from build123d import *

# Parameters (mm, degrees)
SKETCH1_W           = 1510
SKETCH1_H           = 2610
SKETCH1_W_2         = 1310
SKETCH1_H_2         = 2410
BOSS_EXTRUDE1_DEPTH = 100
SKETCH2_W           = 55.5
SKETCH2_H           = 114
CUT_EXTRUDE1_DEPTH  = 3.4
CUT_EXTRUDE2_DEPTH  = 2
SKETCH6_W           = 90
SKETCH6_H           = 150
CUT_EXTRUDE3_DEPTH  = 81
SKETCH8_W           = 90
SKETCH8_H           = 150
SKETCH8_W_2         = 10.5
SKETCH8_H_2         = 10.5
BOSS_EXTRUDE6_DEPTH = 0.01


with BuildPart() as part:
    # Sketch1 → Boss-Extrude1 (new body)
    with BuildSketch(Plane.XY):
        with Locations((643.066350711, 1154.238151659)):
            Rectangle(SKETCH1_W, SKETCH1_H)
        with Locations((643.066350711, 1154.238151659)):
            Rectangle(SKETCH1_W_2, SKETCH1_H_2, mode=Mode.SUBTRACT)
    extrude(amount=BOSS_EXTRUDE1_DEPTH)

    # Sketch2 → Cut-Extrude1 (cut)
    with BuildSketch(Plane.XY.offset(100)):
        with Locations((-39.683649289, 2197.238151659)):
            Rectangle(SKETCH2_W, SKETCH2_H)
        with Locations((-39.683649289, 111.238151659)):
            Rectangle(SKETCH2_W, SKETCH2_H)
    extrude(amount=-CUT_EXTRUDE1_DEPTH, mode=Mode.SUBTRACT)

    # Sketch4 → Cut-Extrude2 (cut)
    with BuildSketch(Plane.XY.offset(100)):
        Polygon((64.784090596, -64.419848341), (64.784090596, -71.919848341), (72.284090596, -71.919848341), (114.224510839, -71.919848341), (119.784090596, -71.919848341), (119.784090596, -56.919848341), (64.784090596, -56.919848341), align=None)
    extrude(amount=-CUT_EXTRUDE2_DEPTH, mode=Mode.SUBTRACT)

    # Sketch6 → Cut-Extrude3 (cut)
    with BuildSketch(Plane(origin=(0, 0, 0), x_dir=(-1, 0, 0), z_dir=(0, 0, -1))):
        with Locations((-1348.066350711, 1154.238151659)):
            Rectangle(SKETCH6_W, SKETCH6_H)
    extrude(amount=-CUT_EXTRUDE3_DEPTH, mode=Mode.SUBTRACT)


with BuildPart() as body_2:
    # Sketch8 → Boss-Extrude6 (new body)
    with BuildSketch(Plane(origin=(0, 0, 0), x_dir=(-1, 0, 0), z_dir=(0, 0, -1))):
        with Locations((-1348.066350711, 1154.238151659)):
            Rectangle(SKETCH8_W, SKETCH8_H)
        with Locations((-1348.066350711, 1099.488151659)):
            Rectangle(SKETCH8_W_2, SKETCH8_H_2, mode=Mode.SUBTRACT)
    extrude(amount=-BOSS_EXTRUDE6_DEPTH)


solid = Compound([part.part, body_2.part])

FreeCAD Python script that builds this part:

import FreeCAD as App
import Part
import Sketcher
from FreeCAD import Vector
Q = App.Units.Quantity


def add_polygon(sketch, points):
    """Adds a closed chain of lines whose ends are joined by coincident constraints."""
    first, n = sketch.GeometryCount, len(points)
    for a, b in zip(points, points[1:] + points[:1]):
        sketch.addGeometry(Part.LineSegment(App.Vector(*a, 0), App.Vector(*b, 0)), False)
    for i in range(n):
        sketch.addConstraint(Sketcher.Constraint("Coincident", first + i, 2, first + (i + 1) % n, 1))

doc = App.newDocument("Part")
body = doc.addObject("PartDesign::Body", "Body")

sketch1 = body.newObject("Sketcher::SketchObject", "Sketch")
sketch1.AttachmentSupport = (doc.getObject("XY_Plane"), [""])
sketch1.MapMode = "FlatFace"
add_polygon(sketch1, [(-112, 2459), (-112, -151), (1398, -151), (1398, 2459)])
add_polygon(sketch1, [(1298, -51), (-12, -51), (-12, 2359), (1298, 2359)])
sketch1.addConstraint([
    Sketcher.Constraint("Vertical", 0),
    Sketcher.Constraint("Horizontal", 1),
    Sketcher.Constraint("Vertical", 2),
    Sketcher.Constraint("Horizontal", 3),
    Sketcher.Constraint("Horizontal", 4),
    Sketcher.Constraint("Vertical", 5),
    Sketcher.Constraint("Horizontal", 6),
    Sketcher.Constraint("Vertical", 7),
    Sketcher.Constraint("DistanceX", 1, 1, 1, 2, Q("1510 mm")),
    Sketcher.Constraint("DistanceX", 4, 2, 4, 1, Q("1310 mm")),
    Sketcher.Constraint("DistanceY", 0, 2, 0, 1, Q("2610 mm")),
    Sketcher.Constraint("DistanceY", 5, 1, 5, 2, Q("2410 mm")),
    Sketcher.Constraint("DistanceX", 0, 2, 4, 2, Q("100 mm")),
    Sketcher.Constraint("DistanceY", 0, 2, 4, 2, Q("100 mm")),
    Sketcher.Constraint("DistanceX", 0, 2, -1, 1, Q("111.933649 mm")),
    Sketcher.Constraint("DistanceY", 0, 2, -1, 1, Q("150.761848 mm")),
])
pad1 = body.newObject("PartDesign::Pad", "Pad")
pad1.Profile = sketch1
pad1.Length = 100

sketch2 = body.newObject("Sketcher::SketchObject", "Sketch001")
sketch2.AttachmentSupport = (doc.getObject("XY_Plane"), [""])
sketch2.MapMode = "FlatFace"
sketch2.AttachmentOffset = App.Placement(Vector(0, 0, 100), App.Rotation())
add_polygon(sketch2, [(-67, 2254), (-67, 2140), (-12, 2140), (-12, 2254)])
add_polygon(sketch2, [(-67, 168), (-67, 54), (-12, 54), (-12, 168)])
sketch2.addConstraint([
    Sketcher.Constraint("Vertical", 0),
    Sketcher.Constraint("Horizontal", 1),
    Sketcher.Constraint("Vertical", 2),
    Sketcher.Constraint("Horizontal", 3),
    Sketcher.Constraint("Vertical", 4),
    Sketcher.Constraint("Horizontal", 5),
    Sketcher.Constraint("Vertical", 6),
    Sketcher.Constraint("Horizontal", 7),
    Sketcher.Constraint("Vertical", 3, 2, 4, 2),
    Sketcher.Constraint("Vertical", 2, 2, 5, 2),
    Sketcher.Constraint("Equal", 2, 4),
    Sketcher.Constraint("DistanceY", 0, 2, 0, 1, Q("114 mm")),
    Sketcher.Constraint("DistanceX", 1, 1, 1, 2, Q("55.5 mm")),
    Sketcher.Constraint("DistanceY", 4, 2, 0, 2, Q("2086 mm")),
    Sketcher.Constraint("DistanceX", 0, 2, -1, 1, Q("67.433649 mm")),
    Sketcher.Constraint("DistanceY", -1, 1, 0, 2, Q("2140.238152 mm")),
])
pocket1 = body.newObject("PartDesign::Pocket", "Pocket")
pocket1.Profile = sketch2
pocket1.Length = 3.4

sketch3 = body.newObject("Sketcher::SketchObject", "Sketch002")
sketch3.AttachmentSupport = (doc.getObject("XY_Plane"), [""])
sketch3.MapMode = "FlatFace"
sketch3.AttachmentOffset = App.Placement(Vector(0, 0, 100), App.Rotation())
add_polygon(sketch3, [(65, -72), (120, -72), (120, -57), (65, -57)])
sketch3.addConstraint([
    Sketcher.Constraint("Horizontal", 0),
    Sketcher.Constraint("Vertical", 1),
    Sketcher.Constraint("Horizontal", 2),
    Sketcher.Constraint("Vertical", 3),
    Sketcher.Constraint("DistanceX", 0, 1, 0, 2, Q("55 mm")),
    Sketcher.Constraint("DistanceY", 1, 1, 1, 2, Q("15 mm")),
    Sketcher.Constraint("DistanceX", -1, 1, 0, 2, Q("119.784091 mm")),
    Sketcher.Constraint("DistanceY", 0, 2, -1, 1, Q("71.919848 mm")),
])
pocket2 = body.newObject("PartDesign::Pocket", "Pocket001")
pocket2.Profile = sketch3
pocket2.Length = 2

sketch4 = body.newObject("Sketcher::SketchObject", "Sketch003")
sketch4.AttachmentSupport = (doc.getObject("XY_Plane"), [""])
sketch4.MapMode = "FlatFace"
add_polygon(sketch4, [(1393, 1229), (1393, 1079), (1303, 1079), (1303, 1229)])
sketch4.addConstraint([
    Sketcher.Constraint("Vertical", 0),
    Sketcher.Constraint("Horizontal", 1),
    Sketcher.Constraint("Vertical", 2),
    Sketcher.Constraint("Horizontal", 3),
    Sketcher.Constraint("DistanceX", 1, 2, 1, 1, Q("90 mm")),
    Sketcher.Constraint("DistanceY", 0, 2, 0, 1, Q("150 mm")),
    Sketcher.Constraint("DistanceX", -1, 1, 0, 2, Q("1393.066351 mm")),
    Sketcher.Constraint("DistanceY", -1, 1, 0, 2, Q("1079.238152 mm")),
])
pocket3 = body.newObject("PartDesign::Pocket", "Pocket002")
pocket3.Profile = sketch4
pocket3.Length = 81
pocket3.Reversed = True
body2 = doc.addObject("PartDesign::Body", "Body001")

sketch5 = body2.newObject("Sketcher::SketchObject", "Sketch004")
sketch5.AttachmentSupport = (doc.getObject("XY_Plane001"), [""])
sketch5.MapMode = "FlatFace"
add_polygon(sketch5, [(1393, 1229), (1393, 1079), (1303, 1079), (1303, 1229)])
add_polygon(sketch5, [(1343, 1094), (1353, 1094), (1353, 1105), (1343, 1105)])
sketch5.addConstraint([
    Sketcher.Constraint("Vertical", 0),
    Sketcher.Constraint("Horizontal", 1),
    Sketcher.Constraint("Vertical", 2),
    Sketcher.Constraint("Horizontal", 3),
    Sketcher.Constraint("Horizontal", 4),
    Sketcher.Constraint("Vertical", 5),
    Sketcher.Constraint("Horizontal", 6),
    Sketcher.Constraint("Vertical", 7),
    Sketcher.Constraint("Equal", 6, 5),
    Sketcher.Constraint("DistanceX", 1, 2, 1, 1, Q("90 mm")),
    Sketcher.Constraint("DistanceY", 0, 2, 0, 1, Q("150 mm")),
    Sketcher.Constraint("DistanceX", 4, 1, 4, 2, Q("10.5 mm")),
    Sketcher.Constraint("DistanceY", 0, 2, 4, 2, Q("15 mm")),
    Sketcher.Constraint("DistanceX", 4, 2, 0, 2, Q("39.75 mm")),
    Sketcher.Constraint("DistanceX", -1, 1, 0, 2, Q("1393.066351 mm")),
    Sketcher.Constraint("DistanceY", -1, 1, 0, 2, Q("1079.238152 mm")),
])
pad2 = body2.newObject("PartDesign::Pad", "Pad001")
pad2.Profile = sketch5
pad2.Length = 0.01

doc.recompute()
